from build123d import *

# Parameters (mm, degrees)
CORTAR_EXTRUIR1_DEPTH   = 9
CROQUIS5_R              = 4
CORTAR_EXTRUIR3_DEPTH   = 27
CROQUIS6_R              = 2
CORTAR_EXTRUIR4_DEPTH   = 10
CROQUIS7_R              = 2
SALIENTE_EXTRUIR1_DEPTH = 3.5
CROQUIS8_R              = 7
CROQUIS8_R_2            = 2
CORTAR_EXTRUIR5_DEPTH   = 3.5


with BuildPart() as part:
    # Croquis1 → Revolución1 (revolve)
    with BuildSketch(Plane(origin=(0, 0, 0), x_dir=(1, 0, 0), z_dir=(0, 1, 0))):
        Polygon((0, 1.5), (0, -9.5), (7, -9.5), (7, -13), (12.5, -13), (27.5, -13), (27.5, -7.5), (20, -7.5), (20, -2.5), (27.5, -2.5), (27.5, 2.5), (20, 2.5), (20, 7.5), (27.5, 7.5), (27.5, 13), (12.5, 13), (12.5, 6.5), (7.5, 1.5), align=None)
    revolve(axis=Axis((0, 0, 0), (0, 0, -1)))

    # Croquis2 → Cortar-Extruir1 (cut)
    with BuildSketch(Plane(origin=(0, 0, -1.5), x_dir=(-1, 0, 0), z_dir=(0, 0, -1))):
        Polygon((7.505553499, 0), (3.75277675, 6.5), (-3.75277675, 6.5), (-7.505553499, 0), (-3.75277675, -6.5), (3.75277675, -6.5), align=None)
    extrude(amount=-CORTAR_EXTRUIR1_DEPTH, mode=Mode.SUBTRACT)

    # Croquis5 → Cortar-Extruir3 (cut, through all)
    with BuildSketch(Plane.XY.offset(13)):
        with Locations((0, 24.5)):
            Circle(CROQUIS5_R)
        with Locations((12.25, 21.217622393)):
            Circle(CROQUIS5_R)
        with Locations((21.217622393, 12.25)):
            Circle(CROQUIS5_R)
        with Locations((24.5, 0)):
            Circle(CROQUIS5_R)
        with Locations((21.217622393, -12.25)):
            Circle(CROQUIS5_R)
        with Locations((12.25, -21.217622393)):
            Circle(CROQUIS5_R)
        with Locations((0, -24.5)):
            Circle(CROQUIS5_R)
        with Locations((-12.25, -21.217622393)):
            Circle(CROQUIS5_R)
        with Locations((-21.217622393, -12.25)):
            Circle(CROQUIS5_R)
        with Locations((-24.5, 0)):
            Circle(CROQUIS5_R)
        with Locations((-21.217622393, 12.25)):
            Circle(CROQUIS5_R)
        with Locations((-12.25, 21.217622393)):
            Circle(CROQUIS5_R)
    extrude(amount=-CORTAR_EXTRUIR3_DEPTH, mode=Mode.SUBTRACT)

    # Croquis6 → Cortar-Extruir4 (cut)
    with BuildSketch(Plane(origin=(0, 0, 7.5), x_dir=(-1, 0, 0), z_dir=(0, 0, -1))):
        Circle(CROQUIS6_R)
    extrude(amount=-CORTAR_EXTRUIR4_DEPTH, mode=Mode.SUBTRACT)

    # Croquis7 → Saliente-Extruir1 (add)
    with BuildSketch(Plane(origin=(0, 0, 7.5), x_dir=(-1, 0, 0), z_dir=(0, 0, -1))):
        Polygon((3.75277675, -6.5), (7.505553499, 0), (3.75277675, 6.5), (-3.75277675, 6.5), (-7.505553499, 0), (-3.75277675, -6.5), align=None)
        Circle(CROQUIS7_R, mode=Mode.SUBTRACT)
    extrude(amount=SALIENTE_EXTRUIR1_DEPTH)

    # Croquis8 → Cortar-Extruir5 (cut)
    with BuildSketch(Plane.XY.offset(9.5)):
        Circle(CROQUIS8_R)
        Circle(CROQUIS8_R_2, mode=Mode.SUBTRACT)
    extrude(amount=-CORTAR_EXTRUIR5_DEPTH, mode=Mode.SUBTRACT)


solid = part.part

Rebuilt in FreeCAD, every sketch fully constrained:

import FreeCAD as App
import Part
import Sketcher

V = App.Vector
Q = App.Units.Quantity

doc = App.newDocument("Part")
body = doc.addObject("PartDesign::Body", "Body")

# Sketch on XZ plane
sketch1 = body.newObject("Sketcher::SketchObject", "Sketch")
sketch1.AttachmentSupport = (doc.getObject("XZ_Plane"), [""])
sketch1.MapMode = "FlatFace"
sketch1.addGeometry(Part.LineSegment(V(0, -1.5, 0), V(0, 9.5, 0)), False)
sketch1.addGeometry(Part.LineSegment(V(0, 9.5, 0), V(7, 9.5, 0)), False)
sketch1.addGeometry(Part.LineSegment(V(7, 9.5, 0), V(7, 13, 0)), False)
sketch1.addGeometry(Part.LineSegment(V(7, 13, 0), V(27.5, 13, 0)), False)
sketch1.addGeometry(Part.LineSegment(V(27.5, 13, 0), V(27.5, 7.5, 0)), False)
sketch1.addGeometry(Part.LineSegment(V(27.5, 7.5, 0), V(20, 7.5, 0)), False)
sketch1.addGeometry(Part.LineSegment(V(20, 7.5, 0), V(20, 2.5, 0)), False)
sketch1.addGeometry(Part.LineSegment(V(20, 2.5, 0), V(27.5, 2.5, 0)), False)
sketch1.addGeometry(Part.LineSegment(V(27.5, 2.5, 0), V(27.5, -2.5, 0)), False)
sketch1.addGeometry(Part.LineSegment(V(27.5, -2.5, 0), V(20, -2.5, 0)), False)
sketch1.addGeometry(Part.LineSegment(V(20, -2.5, 0), V(20, -7.5, 0)), False)
sketch1.addGeometry(Part.LineSegment(V(20, -7.5, 0), V(27.5, -7.5, 0)), False)
sketch1.addGeometry(Part.LineSegment(V(27.5, -7.5, 0), V(27.5, -13, 0)), False)
sketch1.addGeometry(Part.LineSegment(V(27.5, -13, 0), V(12.5, -13, 0)), False)
sketch1.addGeometry(Part.LineSegment(V(12.5, -13, 0), V(12.5, -6.5, 0)), False)
sketch1.addGeometry(Part.LineSegment(V(12.5, -6.5, 0), V(7.5, -1.5, 0)), False)
sketch1.addGeometry(Part.LineSegment(V(7.5, -1.5, 0), V(0, -1.5, 0)), False)
sketch1.addConstraint(Sketcher.Constraint("Coincident", 0, 2, 1, 1))
sketch1.addConstraint(Sketcher.Constraint("Coincident", 1, 2, 2, 1))
sketch1.addConstraint(Sketcher.Constraint("Coincident", 2, 2, 3, 1))
sketch1.addConstraint(Sketcher.Constraint("Coincident", 3, 2, 4, 1))
sketch1.addConstraint(Sketcher.Constraint("Coincident", 4, 2, 5, 1))
sketch1.addConstraint(Sketcher.Constraint("Coincident", 5, 2, 6, 1))
sketch1.addConstraint(Sketcher.Constraint("Coincident", 6, 2, 7, 1))
sketch1.addConstraint(Sketcher.Constraint("Coincident", 7, 2, 8, 1))
sketch1.addConstraint(Sketcher.Constraint("Coincident", 8, 2, 9, 1))
sketch1.addConstraint(Sketcher.Constraint("Coincident", 9, 2, 10, 1))
sketch1.addConstraint(Sketcher.Constraint("Coincident", 10, 2, 11, 1))
sketch1.addConstraint(Sketcher.Constraint("Coincident", 11, 2, 12, 1))
sketch1.addConstraint(Sketcher.Constraint("Coincident", 12, 2, 13, 1))
sketch1.addConstraint(Sketcher.Constraint("Coincident", 13, 2, 14, 1))
sketch1.addConstraint(Sketcher.Constraint("Coincident", 14, 2, 15, 1))
sketch1.addConstraint(Sketcher.Constraint("Coincident", 15, 2, 16, 1))
sketch1.addConstraint(Sketcher.Constraint("Coincident", 16, 2, 0, 1))
sketch1.addConstraint(Sketcher.Constraint("Vertical", 0))
sketch1.addConstraint(Sketcher.Constraint("Horizontal", 1))
sketch1.addConstraint(Sketcher.Constraint("Vertical", 2))
sketch1.addConstraint(Sketcher.Constraint("Horizontal", 3))
sketch1.addConstraint(Sketcher.Constraint("Vertical", 4))
sketch1.addConstraint(Sketcher.Constraint("Horizontal", 5))
sketch1.addConstraint(Sketcher.Constraint("Vertical", 6))
sketch1.addConstraint(Sketcher.Constraint("Horizontal", 7))
sketch1.addConstraint(Sketcher.Constraint("Vertical", 8))
sketch1.addConstraint(Sketcher.Constraint("Horizontal", 9))
sketch1.addConstraint(Sketcher.Constraint("Vertical", 10))
sketch1.addConstraint(Sketcher.Constraint("Horizontal", 11))
sketch1.addConstraint(Sketcher.Constraint("Vertical", 12))
sketch1.addConstraint(Sketcher.Constraint("Horizontal", 13))
sketch1.addConstraint(Sketcher.Constraint("Vertical", 14))
sketch1.addConstraint(Sketcher.Constraint("Horizontal", 16))
sketch1.addConstraint(Sketcher.Constraint("Symmetric", 6, 2, 9, 2, -1))
sketch1.addConstraint(Sketcher.Constraint("Symmetric", 4, 2, 11, 2, -1))
sketch1.addConstraint(Sketcher.Constraint("PointOnObject", 0, 2, -2))
sketch1.addConstraint(Sketcher.Constraint("Vertical", 4, 2, 7, 2))
sketch1.addConstraint(Sketcher.Constraint("Equal", 11, 16))
sketch1.addConstraint(Sketcher.Constraint("Equal", 6, 8))
sketch1.addConstraint(Sketcher.Constraint("Equal", 4, 12))
sketch1.addConstraint(Sketcher.Constraint("DistanceX", 1, 1, 1, 2, 7.0))
sketch1.addConstraint(Sketcher.Constraint("DistanceX", 13, 2, 13, 1, 15.0))
sketch1.addConstraint(Sketcher.Constraint("DistanceY", 0, 1, 0, 2, 11.0))
sketch1.addConstraint(Sketcher.Constraint("DistanceY", 6, 2, 6, 1, 5.0))
sketch1.addConstraint(Sketcher.Constraint("Angle", 15, Q("135 deg")))
sketch1.addConstraint(Sketcher.Constraint("DistanceX", 3, 1, 3, 2, 20.5))
sketch1.addConstraint(Sketcher.Constraint("DistanceX", 5, 2, 5, 1, 7.5))
sketch1.addConstraint(Sketcher.Constraint("DistanceY", 2, 1, 2, 2, 3.5))
sketch1.addConstraint(Sketcher.Constraint("DistanceY", 4, 2, 4, 1, 5.5))
revolution = body.newObject("PartDesign::Revolution", "Revolution")
revolution.Profile = sketch1
revolution.ReferenceAxis = (sketch1, ["V_Axis"])
revolution.Angle = 360

# Sketch on XY plane
sketch2 = body.newObject("Sketcher::SketchObject", "Sketch001")
sketch2.AttachmentSupport = (doc.getObject("XY_Plane"), [""])
sketch2.MapMode = "FlatFace"
sketch2.AttachmentOffset = App.Placement(V(0, 0, -1.5), App.Rotation())
sketch2.addGeometry(Part.LineSegment(V(-8, 0, 0), V(-4, 6, 0)), False)
sketch2.addGeometry(Part.LineSegment(V(-4, 6, 0), V(4, 6, 0)), False)
sketch2.addGeometry(Part.LineSegment(V(4, 6, 0), V(8, 0, 0)), False)
sketch2.addGeometry(Part.LineSegment(V(8, 0, 0), V(4, -6, 0)), False)
sketch2.addGeometry(Part.LineSegment(V(4, -6, 0), V(-4, -6, 0)), False)
sketch2.addGeometry(Part.LineSegment(V(-4, -6, 0), V(-8, 0, 0)), False)
sketch2.addConstraint(Sketcher.Constraint("Coincident", 0, 2, 1, 1))
sketch2.addConstraint(Sketcher.Constraint("Coincident", 1, 2, 2, 1))
sketch2.addConstraint(Sketcher.Constraint("Coincident", 2, 2, 3, 1))
sketch2.addConstraint(Sketcher.Constraint("Coincident", 3, 2, 4, 1))
sketch2.addConstraint(Sketcher.Constraint("Coincident", 4, 2, 5, 1))
sketch2.addConstraint(Sketcher.Constraint("Coincident", 5, 2, 0, 1))
sketch2.addConstraint(Sketcher.Constraint("Horizontal", 1))
sketch2.addConstraint(Sketcher.Constraint("Horizontal", 4))
sketch2.addConstraint(Sketcher.Constraint("Symmetric", 0, 2, 3, 2, -1, 1))
sketch2.addConstraint(Sketcher.Constraint("Symmetric", 2, 2, 5, 2, -1, 1))
sketch2.addConstraint(Sketcher.Constraint("PointOnObject", 2, 2, -1))
sketch2.addConstraint(Sketcher.Constraint("Parallel", 2, 5))
sketch2.addConstraint(Sketcher.Constraint("Vertical", 1, 2, 3, 2))
sketch2.addConstraint(Sketcher.Constraint("Angle", 0, Q("60 deg")))
sketch2.addConstraint(Sketcher.Constraint("DistanceY", 3, 2, 1, 2, 13.0))
sketch2.addConstraint(Sketcher.Constraint("DistanceX", 1, 1, 1, 2, 7.505554))
pocket1 = body.newObject("PartDesign::Pocket", "Pocket")
pocket1.Profile = sketch2
pocket1.Length = 9
pocket1.Reversed = True

# Sketch on XY plane
sketch3 = body.newObject("Sketcher::SketchObject", "Sketch002")
sketch3.AttachmentSupport = (doc.getObject("XY_Plane"), [""])
sketch3.MapMode = "FlatFace"
sketch3.AttachmentOffset = App.Placement(V(0, 0, 13), App.Rotation())
sketch3.addGeometry(Part.Circle(V(0, 24.5, 0), V(0, 0, 1), 4), False)
sketch3.addGeometry(Part.Circle(V(12.2, 21.2, 0), V(0, 0, 1), 4), False)
sketch3.addGeometry(Part.Circle(V(21.2, 12.2, 0), V(0, 0, 1), 4), False)
sketch3.addGeometry(Part.Circle(V(24.5, 0, 0), V(0, 0, 1), 4), False)
sketch3.addGeometry(Part.Circle(V(21.2, -12.2, 0), V(0, 0, 1), 4), False)
sketch3.addGeometry(Part.Circle(V(12.2, -21.2, 0), V(0, 0, 1), 4), False)
sketch3.addGeometry(Part.Circle(V(0, -24.5, 0), V(0, 0, 1), 4), False)
sketch3.addGeometry(Part.Circle(V(-12.2, -21.2, 0), V(0, 0, 1), 4), False)
sketch3.addGeometry(Part.Circle(V(-21.2, -12.2, 0), V(0, 0, 1), 4), False)
sketch3.addGeometry(Part.Circle(V(-24.5, 0, 0), V(0, 0, 1), 4), False)
sketch3.addGeometry(Part.Circle(V(-21.2, 12.2, 0), V(0, 0, 1), 4), False)
sketch3.addGeometry(Part.Circle(V(-12.2, 21.2, 0), V(0, 0, 1), 4), False)
sketch3.addConstraint(Sketcher.Constraint("Equal", 0, 1))
sketch3.addConstraint(Sketcher.Constraint("Equal", 1, 2))
sketch3.addConstraint(Sketcher.Constraint("Equal", 2, 3))
sketch3.addConstraint(Sketcher.Constraint("Equal", 3, 4))
sketch3.addConstraint(Sketcher.Constraint("Equal", 4, 5))
sketch3.addConstraint(Sketcher.Constraint("Equal", 5, 6))
sketch3.addConstraint(Sketcher.Constraint("Equal", 6, 7))
sketch3.addConstraint(Sketcher.Constraint("Equal", 7, 8))
sketch3.addConstraint(Sketcher.Constraint("Equal", 8, 9))
sketch3.addConstraint(Sketcher.Constraint("Equal", 9, 10))
sketch3.addConstraint(Sketcher.Constraint("Equal", 10, 11))
sketch3.addConstraint(Sketcher.Constraint("Symmetric", 0, 3, 6, 3, -1, 1))
sketch3.addConstraint(Sketcher.Constraint("Symmetric", 1, 3, 7, 3, -1, 1))
sketch3.addConstraint(Sketcher.Constraint("Symmetric", 2, 3, 8, 3, -1, 1))
sketch3.addConstraint(Sketcher.Constraint("Symmetric", 3, 3, 9, 3, -1, 1))
sketch3.addConstraint(Sketcher.Constraint("Symmetric", 4, 3, 10, 3, -1, 1))
sketch3.addConstraint(Sketcher.Constraint("Symmetric", 5, 3, 11, 3, -1, 1))
sketch3.addConstraint(Sketcher.Constraint("Symmetric", 5, 3, 7, 3, -2))
sketch3.addConstraint(Sketcher.Constraint("Symmetric", 4, 3, 8, 3, -2))
sketch3.addConstraint(Sketcher.Constraint("PointOnObject", 0, 3, -2))
sketch3.addConstraint(Sketcher.Constraint("PointOnObject", 3, 3, -1))
sketch3.addConstraint(Sketcher.Constraint("Diameter", 0, 8.0))
sketch3.addConstraint(Sketcher.Constraint("DistanceY", -1, 1, 0, 3, 24.5))
sketch3.addConstraint(Sketcher.Constraint("DistanceX", -1, 1, 3, 3, 24.5))
sketch3.addConstraint(Sketcher.Constraint("DistanceY", 4, 3, 2, 3, 24.5))
sketch3.addConstraint(Sketcher.Constraint("DistanceX", 7, 3, 5, 3, 24.5))
sketch3.addConstraint(Sketcher.Constraint("DistanceY", -1, 1, 1, 3, 21.217622))
sketch3.addConstraint(Sketcher.Constraint("DistanceX", -1, 1, 2, 3, 21.217622))
pocket2 = body.newObject("PartDesign::Pocket", "Pocket001")
pocket2.Profile = sketch3
pocket2.Type = "ThroughAll"

# Sketch on XY plane
sketch4 = body.newObject("Sketcher::SketchObject", "Sketch003")
sketch4.AttachmentSupport = (doc.getObject("XY_Plane"), [""])
sketch4.MapMode = "FlatFace"
sketch4.AttachmentOffset = App.Placement(V(0, 0, 7.5), App.Rotation())
sketch4.addGeometry(Part.Circle(V(0, 0, 0), V(0, 0, 1), 2), False)
sketch4.addConstraint(Sketcher.Constraint("Coincident", 0, 3, -1, 1))
sketch4.addConstraint(Sketcher.Constraint("Diameter", 0, 4.0))
pocket3 = body.newObject("PartDesign::Pocket", "Pocket002")
pocket3.Profile = sketch4
pocket3.Length = 10
pocket3.Reversed = True

# Sketch on XY plane
sketch5 = body.newObject("Sketcher::SketchObject", "Sketch004")
sketch5.AttachmentSupport = (doc.getObject("XY_Plane"), [""])
sketch5.MapMode = "FlatFace"
sketch5.AttachmentOffset = App.Placement(V(0, 0, 7.5), App.Rotation())
sketch5.addGeometry(Part.LineSegment(V(-3.8, -6.5, 0), V(-7.5, 0, 0)), False)
sketch5.addGeometry(Part.LineSegment(V(-7.5, 0, 0), V(-3.8, 6.5, 0)), False)
sketch5.addGeometry(Part.LineSegment(V(-3.8, 6.5, 0), V(3.8, 6.5, 0)), False)
sketch5.addGeometry(Part.LineSegment(V(3.8, 6.5, 0), V(7.5, 0, 0)), False)
sketch5.addGeometry(Part.LineSegment(V(7.5, 0, 0), V(3.8, -6.5, 0)), False)
sketch5.addGeometry(Part.LineSegment(V(3.8, -6.5, 0), V(-3.8, -6.5, 0)), False)
sketch5.addGeometry(Part.Circle(V(0, 0, 0), V(0, 0, 1), 2), False)
sketch5.addConstraint(Sketcher.Constraint("Coincident", 0, 2, 1, 1))
sketch5.addConstraint(Sketcher.Constraint("Coincident", 1, 2, 2, 1))
sketch5.addConstraint(Sketcher.Constraint("Coincident", 2, 2, 3, 1))
sketch5.addConstraint(Sketcher.Constraint("Coincident", 3, 2, 4, 1))
sketch5.addConstraint(Sketcher.Constraint("Coincident", 4, 2, 5, 1))
sketch5.addConstraint(Sketcher.Constraint("Coincident", 5, 2, 0, 1))
sketch5.addConstraint(Sketcher.Constraint("Horizontal", 2))
sketch5.addConstraint(Sketcher.Constraint("Horizontal", 5))
sketch5.addConstraint(Sketcher.Constraint("Coincident", 6, 3, -1, 1))
sketch5.addConstraint(Sketcher.Constraint("Symmetric", 0, 2, 3, 2, -1, 1))
sketch5.addConstraint(Sketcher.Constraint("Symmetric", 1, 2, 4, 2, -1, 1))
sketch5.addConstraint(Sketcher.Constraint("PointOnObject", 0, 2, -1))
sketch5.addConstraint(Sketcher.Constraint("Parallel", 0, 3))
sketch5.addConstraint(Sketcher.Constraint("Vertical", 2, 2, 4, 2))
sketch5.addConstraint(Sketcher.Constraint("Diameter", 6, 4.0))
sketch5.addConstraint(Sketcher.Constraint("Angle", 0, Q("120 deg")))
sketch5.addConstraint(Sketcher.Constraint("DistanceY", 4, 2, 2, 2, 13.0))
sketch5.addConstraint(Sketcher.Constraint("DistanceX", 2, 1, 2, 2, 7.505554))
pad1 = body.newObject("PartDesign::Pad", "Pad")
pad1.Profile = sketch5
pad1.Length = 3.5
pad1.Reversed = True

# Sketch on XY plane
sketch6 = body.newObject("Sketcher::SketchObject", "Sketch005")
sketch6.AttachmentSupport = (doc.getObject("XY_Plane"), [""])
sketch6.MapMode = "FlatFace"
sketch6.AttachmentOffset = App.Placement(V(0, 0, 9.5), App.Rotation())
sketch6.addGeometry(Part.Circle(V(0, 0, 0), V(0, 0, 1), 7), False)
sketch6.addGeometry(Part.Circle(V(0, 0, 0), V(0, 0, 1), 2), False)
sketch6.addConstraint(Sketcher.Constraint("Coincident", 0, 3, -1, 1))
sketch6.addConstraint(Sketcher.Constraint("Coincident", 1, 3, -1, 1))
sketch6.addConstraint(Sketcher.Constraint("Diameter", 0, 14.0))
sketch6.addConstraint(Sketcher.Constraint("Diameter", 1, 4.0))
pocket4 = body.newObject("PartDesign::Pocket", "Pocket003")
pocket4.Profile = sketch6
pocket4.Length = 3.5

doc.recompute()
